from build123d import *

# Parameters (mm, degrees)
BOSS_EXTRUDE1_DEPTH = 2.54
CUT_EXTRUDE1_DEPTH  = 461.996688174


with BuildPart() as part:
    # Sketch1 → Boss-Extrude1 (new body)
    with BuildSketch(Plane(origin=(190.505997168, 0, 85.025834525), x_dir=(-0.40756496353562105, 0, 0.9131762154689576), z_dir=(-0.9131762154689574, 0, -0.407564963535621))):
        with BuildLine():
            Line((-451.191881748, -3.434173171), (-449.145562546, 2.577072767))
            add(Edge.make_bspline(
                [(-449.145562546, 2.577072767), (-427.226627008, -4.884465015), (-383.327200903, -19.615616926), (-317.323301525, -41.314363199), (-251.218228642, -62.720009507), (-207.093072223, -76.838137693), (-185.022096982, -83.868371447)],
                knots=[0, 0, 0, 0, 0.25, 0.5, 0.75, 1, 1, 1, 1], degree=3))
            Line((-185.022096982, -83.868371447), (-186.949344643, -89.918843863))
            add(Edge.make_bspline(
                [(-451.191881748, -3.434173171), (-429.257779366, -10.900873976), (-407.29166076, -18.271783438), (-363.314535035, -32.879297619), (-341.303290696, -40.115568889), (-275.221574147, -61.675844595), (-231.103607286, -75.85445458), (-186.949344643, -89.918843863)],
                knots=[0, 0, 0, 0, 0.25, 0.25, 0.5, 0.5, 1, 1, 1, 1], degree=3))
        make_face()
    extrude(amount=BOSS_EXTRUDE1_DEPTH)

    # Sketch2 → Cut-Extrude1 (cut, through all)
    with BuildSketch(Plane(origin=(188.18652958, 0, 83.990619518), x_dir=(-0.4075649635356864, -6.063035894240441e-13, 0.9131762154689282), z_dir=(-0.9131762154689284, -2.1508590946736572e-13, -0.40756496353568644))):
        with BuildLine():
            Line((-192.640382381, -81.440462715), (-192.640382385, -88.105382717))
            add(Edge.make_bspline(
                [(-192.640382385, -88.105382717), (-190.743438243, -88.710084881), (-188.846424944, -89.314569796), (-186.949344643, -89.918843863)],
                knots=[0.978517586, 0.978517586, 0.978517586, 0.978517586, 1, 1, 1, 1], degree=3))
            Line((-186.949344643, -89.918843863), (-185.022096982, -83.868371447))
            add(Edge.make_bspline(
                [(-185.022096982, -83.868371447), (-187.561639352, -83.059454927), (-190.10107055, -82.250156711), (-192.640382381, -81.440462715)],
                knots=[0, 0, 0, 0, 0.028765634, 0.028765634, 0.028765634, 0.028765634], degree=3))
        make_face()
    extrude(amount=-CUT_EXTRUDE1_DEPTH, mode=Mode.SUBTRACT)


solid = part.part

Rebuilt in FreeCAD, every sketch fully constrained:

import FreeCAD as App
import Part
import Sketcher
Q = App.Units.Quantity

doc = App.newDocument("Part")
body = doc.addObject("PartDesign::Body", "Body")

# Sketch on an angled plane
sketch1 = body.newObject("Sketcher::SketchObject", "Sketch")
sketch1.Placement = App.Placement(App.Vector(190.505997, 0, 85.025835), App.Rotation(App.Vector(-0.407564964, 0, 0.913176215), App.Vector(0, 1, 0), App.Vector(-0.913176215, 0, -0.407564964), "ZXY"))
sketch1.addGeometry(Part.LineSegment(App.Vector(-449.145562, 2.577073, 0), App.Vector(-451.191882, -3.434173, 0)), False)
sketch1.addGeometry(Part.BSplineCurve([App.Vector(-451.191882, -3.434173, 0), App.Vector(-429.257779, -10.900874, 0), App.Vector(-407.291661, -18.271783, 0), App.Vector(-363.314535, -32.879298, 0), App.Vector(-341.303291, -40.115569, 0), App.Vector(-275.221574, -61.675845, 0), App.Vector(-231.103607, -75.854455, 0), App.Vector(-186.949345, -89.918844, 0)], [4, 2, 2, 4], [0, 0.25, 0.5, 1], False, 3, [1, 1, 1, 1, 1, 1, 1, 1], False), False)
sketch1.addGeometry(Part.LineSegment(App.Vector(-186.949345, -89.918844, 0), App.Vector(-185.022097, -83.868371, 0)), False)
sketch1.addGeometry(Part.BSplineCurve([App.Vector(-449.145562, 2.577073, 0), App.Vector(-427.226627, -4.884465, 0), App.Vector(-383.327201, -19.615617, 0), App.Vector(-317.323301, -41.314363, 0), App.Vector(-251.218229, -62.720009, 0), App.Vector(-207.093072, -76.838138, 0), App.Vector(-185.022097, -83.868371, 0)], [4, 1, 1, 1, 4], [0, 0.25, 0.5, 0.75, 1], False, 3, [1, 1, 1, 1, 1, 1, 1], False), False)
sketch1.addConstraint(Sketcher.Constraint("Block", 1))
sketch1.addConstraint(Sketcher.Constraint("Block", 3))
sketch1.addConstraint(Sketcher.Constraint("Coincident", 0, 2, 1, 1))
sketch1.addConstraint(Sketcher.Constraint("Coincident", 1, 2, 2, 1))
sketch1.addConstraint(Sketcher.Constraint("Coincident", 2, 2, 3, 2))
sketch1.addConstraint(Sketcher.Constraint("Coincident", 3, 1, 0, 1))
pad1 = body.newObject("PartDesign::Pad", "Pad")
pad1.Profile = sketch1
pad1.Length = Q("0.1 in")

# Sketch on an angled plane
sketch2 = body.newObject("Sketcher::SketchObject", "Sketch001")
sketch2.Placement = App.Placement(App.Vector(188.18653, 0, 83.99062), App.Rotation(App.Vector(-0.407564964, 0, 0.913176215), App.Vector(0, 1, 0), App.Vector(-0.913176215, 0, -0.407564964), "ZXY"))
sketch2.addGeometry(Part.LineSegment(App.Vector(-192.640382, -81.440463, 0), App.Vector(-192.640382, -88.105383, 0)), False)
sketch2.addGeometry(Part.BSplineCurve([App.Vector(-192.640382, -88.105383, 0), App.Vector(-190.743438, -88.710085, 0), App.Vector(-188.846425, -89.31457, 0), App.Vector(-186.949345, -89.918844, 0)], [4, 4], [0.978517586, 1], False, 3, [1, 1, 1, 1], False), False)
sketch2.addGeometry(Part.LineSegment(App.Vector(-186.949345, -89.918844, 0), App.Vector(-185.022097, -83.868371, 0)), False)
sketch2.addGeometry(Part.BSplineCurve([App.Vector(-185.022097, -83.868371, 0), App.Vector(-187.561639, -83.059455, 0), App.Vector(-190.10107, -82.250157, 0), App.Vector(-192.640382, -81.440463, 0)], [4, 4], [0, 0.028765634], False, 3, [1, 1, 1, 1], False), False)
sketch2.addConstraint(Sketcher.Constraint("Block", 1))
sketch2.addConstraint(Sketcher.Constraint("Block", 3))
sketch2.addConstraint(Sketcher.Constraint("Coincident", 0, 2, 1, 1))
sketch2.addConstraint(Sketcher.Constraint("Coincident", 1, 2, 2, 1))
sketch2.addConstraint(Sketcher.Constraint("Coincident", 2, 2, 3, 1))
sketch2.addConstraint(Sketcher.Constraint("Coincident", 3, 2, 0, 1))
pocket1 = body.newObject("PartDesign::Pocket", "Pocket")
pocket1.Profile = sketch2
pocket1.Type = "ThroughAll"

doc.recompute()
